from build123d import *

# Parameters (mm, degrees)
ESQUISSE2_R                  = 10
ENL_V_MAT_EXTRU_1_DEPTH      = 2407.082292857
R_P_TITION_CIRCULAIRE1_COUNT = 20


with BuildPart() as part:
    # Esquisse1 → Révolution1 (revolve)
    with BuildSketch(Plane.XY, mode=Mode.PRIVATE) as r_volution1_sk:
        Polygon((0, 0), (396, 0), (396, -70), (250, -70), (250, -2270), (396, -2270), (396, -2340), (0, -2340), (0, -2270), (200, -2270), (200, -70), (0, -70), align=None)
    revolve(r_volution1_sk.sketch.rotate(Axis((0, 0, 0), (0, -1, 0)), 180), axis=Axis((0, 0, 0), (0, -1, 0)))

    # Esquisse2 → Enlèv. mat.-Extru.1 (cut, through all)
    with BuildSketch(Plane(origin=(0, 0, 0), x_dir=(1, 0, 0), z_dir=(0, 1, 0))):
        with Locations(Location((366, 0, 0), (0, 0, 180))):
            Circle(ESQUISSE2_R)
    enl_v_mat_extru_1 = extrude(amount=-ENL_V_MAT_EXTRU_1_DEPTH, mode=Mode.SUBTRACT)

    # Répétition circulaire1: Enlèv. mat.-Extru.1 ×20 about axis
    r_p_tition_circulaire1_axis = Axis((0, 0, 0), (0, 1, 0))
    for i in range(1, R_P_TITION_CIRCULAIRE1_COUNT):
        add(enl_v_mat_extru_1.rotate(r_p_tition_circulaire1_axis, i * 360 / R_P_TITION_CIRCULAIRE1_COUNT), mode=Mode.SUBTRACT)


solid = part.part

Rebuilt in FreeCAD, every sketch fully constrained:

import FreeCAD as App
import Part
import Sketcher

doc = App.newDocument("Part")
params = doc.addObject("Spreadsheet::Sheet", "Params")
for row, (alias, value) in enumerate([
    ("sketch1_width", "396 mm"),
    ("sketch1_width2", "200 mm"),
    ("sketch1_width3", "146 mm"),
    ("sketch1_height", "70 mm"),
    ("sketch1_height2", "2200 mm"),
    ("revolution_angle", "360 deg"),
    ("sketch2_diameter", "20 mm"),
], start=1):
    params.set(f"A{row}", alias)
    params.set(f"B{row}", "=" + value)
    params.setAlias(f"B{row}", alias)

body = doc.addObject("PartDesign::Body", "Body")

# Sketch on XY plane
sketch1 = doc.addObject("Sketcher::SketchObject", "Sketch")
body.addObject(sketch1)
sketch1.AttachmentSupport = (doc.XY_Plane, [""])
sketch1.MapMode = "FlatFace"
sketch1.addGeometry(Part.LineSegment(App.Vector(396, 0, 0), App.Vector(0, 0, 0)), False)
sketch1.addGeometry(Part.LineSegment(App.Vector(0, 0, 0), App.Vector(0, -70, 0)), False)
sketch1.addGeometry(Part.LineSegment(App.Vector(0, -70, 0), App.Vector(200, -70, 0)), False)
sketch1.addGeometry(Part.LineSegment(App.Vector(200, -70, 0), App.Vector(200, -2270, 0)), False)
sketch1.addGeometry(Part.LineSegment(App.Vector(200, -2270, 0), App.Vector(0, -2270, 0)), False)
sketch1.addGeometry(Part.LineSegment(App.Vector(0, -2270, 0), App.Vector(0, -2340, 0)), False)
sketch1.addGeometry(Part.LineSegment(App.Vector(0, -2340, 0), App.Vector(396, -2340, 0)), False)
sketch1.addGeometry(Part.LineSegment(App.Vector(396, -2340, 0), App.Vector(396, -2270, 0)), False)
sketch1.addGeometry(Part.LineSegment(App.Vector(396, -2270, 0), App.Vector(250, -2270, 0)), False)
sketch1.addGeometry(Part.LineSegment(App.Vector(250, -2270, 0), App.Vector(250, -70, 0)), False)
sketch1.addGeometry(Part.LineSegment(App.Vector(250, -70, 0), App.Vector(396, -70, 0)), False)
sketch1.addGeometry(Part.LineSegment(App.Vector(396, -70, 0), App.Vector(396, 0, 0)), False)
sketch1.addConstraint(Sketcher.Constraint("Coincident", 0, 2, 1, 1))
sketch1.addConstraint(Sketcher.Constraint("Coincident", 1, 2, 2, 1))
sketch1.addConstraint(Sketcher.Constraint("Coincident", 2, 2, 3, 1))
sketch1.addConstraint(Sketcher.Constraint("Coincident", 3, 2, 4, 1))
sketch1.addConstraint(Sketcher.Constraint("Coincident", 4, 2, 5, 1))
sketch1.addConstraint(Sketcher.Constraint("Coincident", 5, 2, 6, 1))
sketch1.addConstraint(Sketcher.Constraint("Coincident", 6, 2, 7, 1))
sketch1.addConstraint(Sketcher.Constraint("Coincident", 7, 2, 8, 1))
sketch1.addConstraint(Sketcher.Constraint("Coincident", 8, 2, 9, 1))
sketch1.addConstraint(Sketcher.Constraint("Coincident", 9, 2, 10, 1))
sketch1.addConstraint(Sketcher.Constraint("Coincident", 10, 2, 11, 1))
sketch1.addConstraint(Sketcher.Constraint("Coincident", 11, 2, 0, 1))
sketch1.addConstraint(Sketcher.Constraint("Horizontal", 0))
sketch1.addConstraint(Sketcher.Constraint("Vertical", 1))
sketch1.addConstraint(Sketcher.Constraint("Horizontal", 2))
sketch1.addConstraint(Sketcher.Constraint("Vertical", 3))
sketch1.addConstraint(Sketcher.Constraint("Horizontal", 4))
sketch1.addConstraint(Sketcher.Constraint("Vertical", 5))
sketch1.addConstraint(Sketcher.Constraint("Horizontal", 6))
sketch1.addConstraint(Sketcher.Constraint("Vertical", 7))
sketch1.addConstraint(Sketcher.Constraint("Horizontal", 8))
sketch1.addConstraint(Sketcher.Constraint("Vertical", 9))
sketch1.addConstraint(Sketcher.Constraint("Horizontal", 10))
sketch1.addConstraint(Sketcher.Constraint("Vertical", 11))
sketch1.addConstraint(Sketcher.Constraint("Coincident", 0, 2, -1, 1))
sketch1.addConstraint(Sketcher.Constraint("PointOnObject", 4, 2, -2))
sketch1.addConstraint(Sketcher.Constraint("Horizontal", 4, 2, 7, 2))
sketch1.addConstraint(Sketcher.Constraint("Horizontal", 2, 2, 9, 2))
sketch1.addConstraint(Sketcher.Constraint("Vertical", 7, 2, 10, 2))
sketch1.addConstraint(Sketcher.Constraint("Equal", 1, 5))
sketch1.addConstraint(Sketcher.Constraint("DistanceX", 0, 2, 0, 1, 396.0))
sketch1.addConstraint(Sketcher.Constraint("DistanceX", 2, 1, 2, 2, 200.0))
sketch1.addConstraint(Sketcher.Constraint("DistanceX", 8, 2, 8, 1, 146.0))
sketch1.addConstraint(Sketcher.Constraint("DistanceY", 1, 2, 1, 1, 70.0))
sketch1.addConstraint(Sketcher.Constraint("DistanceY", 3, 2, 3, 1, 2200.0))
sketch1.setExpression("Constraints[30]", "Params.sketch1_width")
sketch1.setExpression("Constraints[31]", "Params.sketch1_width2")
sketch1.setExpression("Constraints[32]", "Params.sketch1_width3")
sketch1.setExpression("Constraints[33]", "Params.sketch1_height")
sketch1.setExpression("Constraints[34]", "Params.sketch1_height2")
revolution = doc.addObject("PartDesign::Revolution", "Revolution")
body.addObject(revolution)
revolution.Profile = sketch1
revolution.ReferenceAxis = (sketch1, ["V_Axis"])
revolution.setExpression("Angle", "Params.revolution_angle")

# Sketch on XZ plane
sketch2 = doc.addObject("Sketcher::SketchObject", "Sketch001")
body.addObject(sketch2)
sketch2.AttachmentSupport = (doc.XZ_Plane, [""])
sketch2.MapMode = "FlatFace"
sketch2.addGeometry(Part.Circle(App.Vector(366, 0, 0), App.Vector(0, 0, 1), 10), False)
sketch2.addConstraint(Sketcher.Constraint("PointOnObject", 0, 3, -1))
sketch2.addConstraint(Sketcher.Constraint("Diameter", 0, 20.0))
sketch2.addConstraint(Sketcher.Constraint("DistanceX", -1, 1, 0, 3, 366.0))
sketch2.setExpression("Constraints[1]", "Params.sketch2_diameter")
pocket1 = doc.addObject("PartDesign::Pocket", "Pocket")
body.addObject(pocket1)
pocket1.Profile = sketch2
pocket1.Type = "ThroughAll"
pocket1.Reversed = True
doc.recompute()

polarpattern = doc.addObject("PartDesign::PolarPattern", "PolarPattern")
body.addObject(polarpattern)
polarpattern.Originals = [pocket1]
polarpattern.Axis = (doc.Y_Axis, [""])
polarpattern.Angle = 360
polarpattern.Occurrences = 20
body.Tip = polarpattern

doc.recompute()
